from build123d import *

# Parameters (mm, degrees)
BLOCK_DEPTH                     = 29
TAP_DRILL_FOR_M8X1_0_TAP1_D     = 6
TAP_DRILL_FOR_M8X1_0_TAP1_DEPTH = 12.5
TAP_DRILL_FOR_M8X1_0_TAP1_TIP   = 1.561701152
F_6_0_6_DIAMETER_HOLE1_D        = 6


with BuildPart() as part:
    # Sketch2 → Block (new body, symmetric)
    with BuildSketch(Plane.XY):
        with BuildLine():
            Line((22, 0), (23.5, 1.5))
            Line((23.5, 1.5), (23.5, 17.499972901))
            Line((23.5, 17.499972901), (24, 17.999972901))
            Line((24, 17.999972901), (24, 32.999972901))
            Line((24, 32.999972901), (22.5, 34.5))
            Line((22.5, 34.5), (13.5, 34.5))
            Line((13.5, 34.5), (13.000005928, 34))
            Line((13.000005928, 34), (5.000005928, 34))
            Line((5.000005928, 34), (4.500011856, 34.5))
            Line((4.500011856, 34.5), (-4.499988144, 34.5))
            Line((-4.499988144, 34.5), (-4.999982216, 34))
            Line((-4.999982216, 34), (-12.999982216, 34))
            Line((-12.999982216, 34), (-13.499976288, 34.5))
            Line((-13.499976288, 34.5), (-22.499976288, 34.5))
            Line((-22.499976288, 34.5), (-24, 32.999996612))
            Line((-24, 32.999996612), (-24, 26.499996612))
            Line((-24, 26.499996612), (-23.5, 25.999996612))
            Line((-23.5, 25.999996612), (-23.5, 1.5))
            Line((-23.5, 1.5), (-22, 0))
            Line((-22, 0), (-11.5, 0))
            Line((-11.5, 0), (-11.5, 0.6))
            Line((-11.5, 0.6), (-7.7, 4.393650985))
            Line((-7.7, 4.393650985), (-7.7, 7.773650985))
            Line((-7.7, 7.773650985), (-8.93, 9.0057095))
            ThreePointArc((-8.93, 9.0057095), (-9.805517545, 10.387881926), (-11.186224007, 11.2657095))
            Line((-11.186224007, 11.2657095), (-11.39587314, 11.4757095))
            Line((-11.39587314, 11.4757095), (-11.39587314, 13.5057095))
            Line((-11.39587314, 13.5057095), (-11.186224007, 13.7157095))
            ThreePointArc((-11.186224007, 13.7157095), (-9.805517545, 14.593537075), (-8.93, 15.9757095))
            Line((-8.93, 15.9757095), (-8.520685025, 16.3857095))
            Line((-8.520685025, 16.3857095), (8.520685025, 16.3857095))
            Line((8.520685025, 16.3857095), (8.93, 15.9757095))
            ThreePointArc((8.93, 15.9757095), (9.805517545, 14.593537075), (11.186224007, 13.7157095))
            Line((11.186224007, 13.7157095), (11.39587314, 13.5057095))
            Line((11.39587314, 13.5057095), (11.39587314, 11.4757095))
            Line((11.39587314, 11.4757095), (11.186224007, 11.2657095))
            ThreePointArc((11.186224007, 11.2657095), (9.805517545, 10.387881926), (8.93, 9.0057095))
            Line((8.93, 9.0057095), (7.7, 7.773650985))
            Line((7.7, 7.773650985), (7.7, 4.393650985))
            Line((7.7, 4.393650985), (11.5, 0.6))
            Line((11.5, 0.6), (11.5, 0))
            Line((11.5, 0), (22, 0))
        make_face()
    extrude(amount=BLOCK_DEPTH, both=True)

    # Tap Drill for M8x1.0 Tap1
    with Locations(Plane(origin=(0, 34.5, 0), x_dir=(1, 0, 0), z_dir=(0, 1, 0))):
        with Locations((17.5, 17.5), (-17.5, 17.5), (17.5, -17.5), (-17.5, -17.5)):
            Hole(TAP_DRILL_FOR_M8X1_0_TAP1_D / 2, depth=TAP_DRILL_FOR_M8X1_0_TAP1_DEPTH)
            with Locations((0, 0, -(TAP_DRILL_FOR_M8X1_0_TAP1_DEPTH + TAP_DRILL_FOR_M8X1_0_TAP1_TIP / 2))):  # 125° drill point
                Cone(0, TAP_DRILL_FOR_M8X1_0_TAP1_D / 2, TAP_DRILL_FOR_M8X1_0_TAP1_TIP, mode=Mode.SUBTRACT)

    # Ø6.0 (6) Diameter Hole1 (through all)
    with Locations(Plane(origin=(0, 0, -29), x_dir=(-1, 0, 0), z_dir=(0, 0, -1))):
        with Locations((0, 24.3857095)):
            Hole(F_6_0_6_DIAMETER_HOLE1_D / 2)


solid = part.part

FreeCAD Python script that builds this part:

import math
import FreeCAD as App
import Part
import Sketcher

V = App.Vector

doc = App.newDocument("Part")
body = doc.addObject("PartDesign::Body", "Body")

sketch1 = body.newObject("Sketcher::SketchObject", "Sketch")
sketch1.AttachmentSupport = (doc.getObject("XY_Plane"), [""])
sketch1.MapMode = "FlatFace"
sketch1.addGeometry([
    Part.LineSegment(V(22, 0, 0), V(23.5, 1.5, 0)),
    Part.LineSegment(V(23.5, 1.5, 0), V(23.5, 17.499973, 0)),
    Part.LineSegment(V(23.5, 17.499973, 0), V(24, 17.999973, 0)),
    Part.LineSegment(V(24, 17.999973, 0), V(24, 32.999973, 0)),
    Part.LineSegment(V(24, 32.999973, 0), V(22.5, 34.5, 0)),
    Part.LineSegment(V(22.5, 34.5, 0), V(13.5, 34.5, 0)),
    Part.LineSegment(V(13.5, 34.5, 0), V(13.000006, 34, 0)),
    Part.LineSegment(V(13.000006, 34, 0), V(5.000006, 34, 0)),
    Part.LineSegment(V(5.000006, 34, 0), V(4.500012, 34.5, 0)),
    Part.LineSegment(V(4.500012, 34.5, 0), V(-4.499988, 34.5, 0)),
    Part.LineSegment(V(-4.499988, 34.5, 0), V(-4.999982, 34, 0)),
    Part.LineSegment(V(-4.999982, 34, 0), V(-12.999982, 34, 0)),
    Part.LineSegment(V(-12.999982, 34, 0), V(-13.499976, 34.5, 0)),
    Part.LineSegment(V(-13.499976, 34.5, 0), V(-22.499976, 34.5, 0)),
    Part.LineSegment(V(-22.499976, 34.5, 0), V(-24, 32.999997, 0)),
    Part.LineSegment(V(-24, 32.999997, 0), V(-24, 26.499997, 0)),
    Part.LineSegment(V(-24, 26.499997, 0), V(-23.5, 25.999997, 0)),
    Part.LineSegment(V(-23.5, 25.999997, 0), V(-23.5, 1.5, 0)),
    Part.LineSegment(V(-23.5, 1.5, 0), V(-22, 0, 0)),
    Part.LineSegment(V(-22, 0, 0), V(-11.5, 0, 0)),
    Part.LineSegment(V(-11.5, 0, 0), V(-11.5, 0.6, 0)),
    Part.LineSegment(V(-11.5, 0.6, 0), V(-7.7, 4.393651, 0)),
    Part.LineSegment(V(-7.7, 4.393651, 0), V(-7.7, 7.773651, 0)),
    Part.LineSegment(V(-7.7, 7.773651, 0), V(-8.93, 9.00571, 0)),
    Part.ArcOfCircle(Part.Circle(V(-12.459384, 7.738449, 0), V(0, 0, 1), 3.75), math.radians(19.751175), math.radians(70.153016)),
    Part.LineSegment(V(-11.186224, 11.265709, 0), V(-11.395873, 11.47571, 0)),
    Part.LineSegment(V(-11.395873, 11.47571, 0), V(-11.395873, 13.50571, 0)),
    Part.LineSegment(V(-11.395873, 13.50571, 0), V(-11.186224, 13.71571, 0)),
    Part.ArcOfCircle(Part.Circle(V(-12.459384, 17.24297, 0), V(0, 0, 1), 3.75), math.radians(-70.153016), math.radians(-19.751175)),
    Part.LineSegment(V(-8.93, 15.97571, 0), V(-8.520685, 16.38571, 0)),
    Part.LineSegment(V(-8.520685, 16.38571, 0), V(8.520685, 16.38571, 0)),
    Part.LineSegment(V(8.520685, 16.38571, 0), V(8.93, 15.97571, 0)),
    Part.ArcOfCircle(Part.Circle(V(12.459384, 17.24297, 0), V(0, 0, 1), 3.75), math.radians(-160.248825), math.radians(-109.846984)),
    Part.LineSegment(V(11.186224, 13.71571, 0), V(11.395873, 13.50571, 0)),
    Part.LineSegment(V(11.395873, 13.50571, 0), V(11.395873, 11.47571, 0)),
    Part.LineSegment(V(11.395873, 11.47571, 0), V(11.186224, 11.265709, 0)),
    Part.ArcOfCircle(Part.Circle(V(12.459384, 7.738449, 0), V(0, 0, 1), 3.75), math.radians(109.846984), math.radians(160.248825)),
    Part.LineSegment(V(8.93, 9.00571, 0), V(7.7, 7.773651, 0)),
    Part.LineSegment(V(7.7, 7.773651, 0), V(7.7, 4.393651, 0)),
    Part.LineSegment(V(7.7, 4.393651, 0), V(11.5, 0.6, 0)),
    Part.LineSegment(V(11.5, 0.6, 0), V(11.5, 0, 0)),
    Part.LineSegment(V(11.5, 0, 0), V(22, 0, 0)),
], False)
sketch1.addConstraint([
    Sketcher.Constraint("Coincident", 0, 2, 1, 1),
    Sketcher.Constraint("Coincident", 1, 2, 2, 1),
    Sketcher.Constraint("Coincident", 2, 2, 3, 1),
    Sketcher.Constraint("Coincident", 3, 2, 4, 1),
    Sketcher.Constraint("Coincident", 4, 2, 5, 1),
    Sketcher.Constraint("Coincident", 5, 2, 6, 1),
    Sketcher.Constraint("Coincident", 6, 2, 7, 1),
    Sketcher.Constraint("Coincident", 7, 2, 8, 1),
    Sketcher.Constraint("Coincident", 8, 2, 9, 1),
    Sketcher.Constraint("Coincident", 9, 2, 10, 1),
    Sketcher.Constraint("Coincident", 10, 2, 11, 1),
    Sketcher.Constraint("Coincident", 11, 2, 12, 1),
    Sketcher.Constraint("Coincident", 12, 2, 13, 1),
    Sketcher.Constraint("Coincident", 13, 2, 14, 1),
    Sketcher.Constraint("Coincident", 14, 2, 15, 1),
    Sketcher.Constraint("Coincident", 15, 2, 16, 1),
    Sketcher.Constraint("Coincident", 16, 2, 17, 1),
    Sketcher.Constraint("Coincident", 17, 2, 18, 1),
    Sketcher.Constraint("Coincident", 18, 2, 19, 1),
    Sketcher.Constraint("Coincident", 19, 2, 20, 1),
    Sketcher.Constraint("Coincident", 20, 2, 21, 1),
    Sketcher.Constraint("Coincident", 21, 2, 22, 1),
    Sketcher.Constraint("Coincident", 22, 2, 23, 1),
    Sketcher.Constraint("Coincident", 23, 2, 24, 1),
    Sketcher.Constraint("Coincident", 24, 2, 25, 1),
    Sketcher.Constraint("Coincident", 25, 2, 26, 1),
    Sketcher.Constraint("Coincident", 26, 2, 27, 1),
    Sketcher.Constraint("Coincident", 27, 2, 28, 1),
    Sketcher.Constraint("Coincident", 28, 2, 29, 1),
    Sketcher.Constraint("Coincident", 29, 2, 30, 1),
    Sketcher.Constraint("Coincident", 30, 2, 31, 1),
    Sketcher.Constraint("Coincident", 31, 2, 32, 1),
    Sketcher.Constraint("Coincident", 32, 2, 33, 1),
    Sketcher.Constraint("Coincident", 33, 2, 34, 1),
    Sketcher.Constraint("Coincident", 34, 2, 35, 1),
    Sketcher.Constraint("Coincident", 35, 2, 36, 1),
    Sketcher.Constraint("Coincident", 36, 2, 37, 1),
    Sketcher.Constraint("Coincident", 37, 2, 38, 1),
    Sketcher.Constraint("Coincident", 38, 2, 39, 1),
    Sketcher.Constraint("Coincident", 39, 2, 40, 1),
    Sketcher.Constraint("Coincident", 40, 2, 41, 1),
    Sketcher.Constraint("Coincident", 41, 2, 0, 1),
    Sketcher.Constraint("Vertical", 1),
    Sketcher.Constraint("Vertical", 3),
    Sketcher.Constraint("Horizontal", 5),
    Sketcher.Constraint("Horizontal", 7),
    Sketcher.Constraint("Horizontal", 9),
    Sketcher.Constraint("Horizontal", 11),
    Sketcher.Constraint("Horizontal", 13),
    Sketcher.Constraint("Vertical", 15),
    Sketcher.Constraint("Vertical", 17),
    Sketcher.Constraint("Horizontal", 19),
    Sketcher.Constraint("Vertical", 20),
    Sketcher.Constraint("Vertical", 22),
    Sketcher.Constraint("Vertical", 26),
    Sketcher.Constraint("Horizontal", 30),
    Sketcher.Constraint("Vertical", 34),
    Sketcher.Constraint("Vertical", 38),
    Sketcher.Constraint("Vertical", 40),
    Sketcher.Constraint("Horizontal", 41),
    Sketcher.Constraint("Equal", 24, 28),
    Sketcher.Constraint("Equal", 28, 32),
    Sketcher.Constraint("Equal", 32, 36),
    Sketcher.Constraint("Symmetric", 19, 2, 40, 2, -1, 1),
    Sketcher.Constraint("Symmetric", 28, 3, 32, 3, -2),
    Sketcher.Constraint("Symmetric", 24, 3, 36, 3, -2),
    Sketcher.Constraint("Symmetric", 0, 2, 17, 2, -2),
    Sketcher.Constraint("Symmetric", 26, 2, 33, 2, -2),
    Sketcher.Constraint("Symmetric", 22, 2, 37, 2, -2),
    Sketcher.Constraint("Symmetric", 18, 2, 41, 2, -2),
    Sketcher.Constraint("Parallel", 0, 2),
    Sketcher.Constraint("Parallel", 6, 10),
    Sketcher.Constraint("Parallel", 8, 12),
    Sketcher.Constraint("Perpendicular", 12, 14),
    Sketcher.Constraint("Perpendicular", 2, 16),
    Sketcher.Constraint("Parallel", 16, 18),
    Sketcher.Constraint("Perpendicular", 21, 23),
    Sketcher.Constraint("Parallel", 23, 25),
    Sketcher.Constraint("Parallel", 27, 29),
    Sketcher.Constraint("Parallel", 25, 31),
    Sketcher.Constraint("Parallel", 31, 33),
    Sketcher.Constraint("Parallel", 29, 35),
    Sketcher.Constraint("Parallel", 35, 37),
    Sketcher.Constraint("Perpendicular", 37, 39),
    Sketcher.Constraint("Horizontal", 5, 2, 8, 2),
    Sketcher.Constraint("Horizontal", 7, 2, 10, 2),
    Sketcher.Constraint("Horizontal", 9, 2, 12, 2),
    Sketcher.Constraint("Horizontal", 28, 2, 31, 2),
    Sketcher.Constraint("Horizontal", 27, 2, 32, 2),
    Sketcher.Constraint("Horizontal", 25, 2, 34, 2),
    Sketcher.Constraint("Horizontal", 21, 2, 38, 2),
    Sketcher.Constraint("Vertical", 24, 3, 28, 3),
    Sketcher.Constraint("Vertical", 24, 2, 27, 2),
    Sketcher.Constraint("Vertical", 23, 2, 28, 2),
    Sketcher.Constraint("Equal", 5, 9),
    Sketcher.Constraint("Equal", 7, 11),
    Sketcher.Constraint("Equal", 9, 13),
    Sketcher.Constraint("Equal", 6, 8),
    Sketcher.Constraint("Equal", 4, 14),
    Sketcher.Constraint("Equal", 2, 16),
    Sketcher.Constraint("DistanceX", 5, 2, 5, 1, 9.0),
    Sketcher.Constraint("DistanceX", 7, 2, 7, 1, 8.0),
    Sketcher.Constraint("DistanceY", 3, 1, 3, 2, 15.0),
    Sketcher.Constraint("Radius", 24, 3.75),
    Sketcher.Constraint("DistanceX", 19, 1, 19, 2, 10.5),
    Sketcher.Constraint("DistanceY", 15, 2, 15, 1, 6.5),
    Sketcher.Constraint("DistanceY", 20, 1, 20, 2, 0.6),
    Sketcher.Constraint("DistanceX", -1, 1, 2, 2, 24.0),
    Sketcher.Constraint("DistanceY", -1, 1, 6, 2, 34.0),
    Sketcher.Constraint("DistanceX", 18, 2, -1, 1, 22.0),
    Sketcher.Constraint("DistanceX", 4, 2, 1, 2, 1.0),
    Sketcher.Constraint("DistanceY", 16, 2, 14, 2, 7.0),
    Sketcher.Constraint("DistanceY", 22, 1, 22, 2, 3.38),
    Sketcher.Constraint("DistanceY", 26, 1, 26, 2, 2.03),
    Sketcher.Constraint("DistanceY", -1, 1, 4, 2, 34.5),
    Sketcher.Constraint("DistanceX", 21, 2, -1, 1, 7.7),
    Sketcher.Constraint("DistanceY", 23, 2, 26, 2, 4.5),
    Sketcher.Constraint("DistanceX", 23, 2, -1, 1, 8.93),
    Sketcher.Constraint("DistanceY", 23, 2, 24, 2, 2.26),
    Sketcher.Constraint("DistanceY", 28, 2, 29, 2, 0.41),
    Sketcher.Constraint("DistanceX", 30, 1, 30, 2, 17.04137),
    Sketcher.Constraint("DistanceX", 28, 3, 10, 2, 7.459402),
    Sketcher.Constraint("DistanceY", 21, 2, 24, 3, 3.344798),
])
pad1 = body.newObject("PartDesign::Pad", "Pad")
pad1.Profile = sketch1
pad1.Length = 58
pad1.Midplane = True

sketch2 = body.newObject("Sketcher::SketchObject", "Sketch001")
sketch2.AttachmentSupport = (doc.getObject("XZ_Plane"), [""])
sketch2.MapMode = "FlatFace"
sketch2.AttachmentOffset = App.Placement(V(0, 0, -34.5), App.Rotation())
sketch2.addGeometry([
    Part.Circle(V(17.5, -17.5, 0), V(0, 0, 1), 3),
    Part.Circle(V(-17.5, -17.5, 0), V(0, 0, 1), 3),
    Part.Circle(V(17.5, 17.5, 0), V(0, 0, 1), 3),
    Part.Circle(V(-17.5, 17.5, 0), V(0, 0, 1), 3),
], False)
sketch2.addConstraint([
    Sketcher.Constraint("Equal", 0, 1),
    Sketcher.Constraint("Equal", 1, 2),
    Sketcher.Constraint("Equal", 2, 3),
    Sketcher.Constraint("Symmetric", 1, 3, 2, 3, -1, 1),
    Sketcher.Constraint("Symmetric", 0, 3, 3, 3, -1, 1),
    Sketcher.Constraint("Symmetric", 0, 3, 1, 3, -2),
    Sketcher.Constraint("Diameter", 0, 6.0),
    Sketcher.Constraint("DistanceX", 1, 3, 0, 3, 35.0),
    Sketcher.Constraint("DistanceY", 0, 3, 2, 3, 35.0),
])
doc.recompute()
hole = body.newObject("PartDesign::Hole", "Hole")
hole.Profile = sketch2
hole.ThreadType = "None"
hole.Diameter = 6
hole.DepthType = "Dimension"
hole.Depth = 12.5
hole.DrillPoint = "Angled"
hole.DrillPointAngle = 125
hole.Reversed = True

sketch3 = body.newObject("Sketcher::SketchObject", "Sketch002")
sketch3.AttachmentSupport = (doc.getObject("XY_Plane"), [""])
sketch3.MapMode = "FlatFace"
sketch3.AttachmentOffset = App.Placement(V(0, 0, -29), App.Rotation())
sketch3.addGeometry(Part.Circle(V(0, 24.38571, 0), V(0, 0, 1), 3), False)
sketch3.addConstraint([
    Sketcher.Constraint("PointOnObject", 0, 3, -2),
    Sketcher.Constraint("Diameter", 0, 6.0),
    Sketcher.Constraint("DistanceY", -1, 1, 0, 3, 24.38571),
])
doc.recompute()
hole2 = body.newObject("PartDesign::Hole", "Hole001")
hole2.Profile = sketch3
hole2.ThreadType = "None"
hole2.Diameter = 6
hole2.DepthType = "ThroughAll"
hole2.Reversed = True

doc.recompute()
